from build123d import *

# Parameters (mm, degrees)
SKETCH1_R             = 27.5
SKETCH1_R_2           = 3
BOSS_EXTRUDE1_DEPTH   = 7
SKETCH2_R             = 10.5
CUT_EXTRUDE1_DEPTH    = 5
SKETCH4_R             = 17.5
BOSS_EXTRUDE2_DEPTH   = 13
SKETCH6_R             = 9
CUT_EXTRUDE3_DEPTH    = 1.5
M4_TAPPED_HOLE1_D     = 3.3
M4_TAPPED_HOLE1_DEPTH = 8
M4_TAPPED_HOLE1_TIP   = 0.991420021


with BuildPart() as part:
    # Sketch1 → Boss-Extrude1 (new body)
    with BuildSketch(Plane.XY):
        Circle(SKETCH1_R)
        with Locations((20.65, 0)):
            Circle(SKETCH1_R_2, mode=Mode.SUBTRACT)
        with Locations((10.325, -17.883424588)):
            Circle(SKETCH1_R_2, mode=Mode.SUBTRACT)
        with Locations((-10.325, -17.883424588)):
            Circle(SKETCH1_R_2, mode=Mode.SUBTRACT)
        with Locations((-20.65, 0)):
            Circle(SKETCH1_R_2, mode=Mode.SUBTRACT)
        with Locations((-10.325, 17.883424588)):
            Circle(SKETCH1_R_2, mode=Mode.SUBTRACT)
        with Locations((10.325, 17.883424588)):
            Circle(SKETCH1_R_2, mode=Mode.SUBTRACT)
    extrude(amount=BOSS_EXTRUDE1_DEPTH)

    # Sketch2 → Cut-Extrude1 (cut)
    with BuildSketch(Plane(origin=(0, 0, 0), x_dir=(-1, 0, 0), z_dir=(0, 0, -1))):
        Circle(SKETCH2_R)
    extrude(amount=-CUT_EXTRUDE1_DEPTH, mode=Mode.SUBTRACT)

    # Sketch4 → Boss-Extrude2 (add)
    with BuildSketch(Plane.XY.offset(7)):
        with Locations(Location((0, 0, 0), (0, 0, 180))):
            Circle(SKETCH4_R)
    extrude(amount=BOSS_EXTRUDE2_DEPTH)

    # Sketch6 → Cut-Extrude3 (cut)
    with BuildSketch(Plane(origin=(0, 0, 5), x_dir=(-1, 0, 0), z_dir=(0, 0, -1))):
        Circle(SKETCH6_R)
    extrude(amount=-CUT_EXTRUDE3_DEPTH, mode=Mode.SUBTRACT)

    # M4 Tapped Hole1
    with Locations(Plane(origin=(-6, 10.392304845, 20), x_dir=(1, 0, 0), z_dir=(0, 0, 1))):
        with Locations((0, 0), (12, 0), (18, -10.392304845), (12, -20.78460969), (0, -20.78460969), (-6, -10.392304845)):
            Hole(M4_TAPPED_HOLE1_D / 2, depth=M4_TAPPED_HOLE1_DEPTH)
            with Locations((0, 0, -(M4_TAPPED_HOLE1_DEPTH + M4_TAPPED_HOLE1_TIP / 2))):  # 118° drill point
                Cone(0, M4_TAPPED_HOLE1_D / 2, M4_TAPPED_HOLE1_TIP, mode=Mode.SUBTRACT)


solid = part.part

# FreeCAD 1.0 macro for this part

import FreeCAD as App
import Part
import Sketcher

V = App.Vector

doc = App.newDocument("Part")
body = doc.addObject("PartDesign::Body", "Body")

# Sketch on XY plane
sketch1 = body.newObject("Sketcher::SketchObject", "Sketch")
sketch1.AttachmentSupport = (doc.getObject("XY_Plane"), [""])
sketch1.MapMode = "FlatFace"
sketch1.addGeometry(Part.Circle(V(0, 0, 0), V(0, 0, 1), 27.5), False)
sketch1.addGeometry(Part.Circle(V(-10.3, -17.9, 0), V(0, 0, 1), 3), False)
sketch1.addGeometry(Part.Circle(V(-20.6, 0, 0), V(0, 0, 1), 3), False)
sketch1.addGeometry(Part.Circle(V(10.3, -17.9, 0), V(0, 0, 1), 3), False)
sketch1.addGeometry(Part.Circle(V(20.6, 0, 0), V(0, 0, 1), 3), False)
sketch1.addGeometry(Part.Circle(V(-10.3, 17.9, 0), V(0, 0, 1), 3), False)
sketch1.addGeometry(Part.Circle(V(10.3, 17.9, 0), V(0, 0, 1), 3), False)
sketch1.addConstraint(Sketcher.Constraint("Coincident", 0, 3, -1, 1))
sketch1.addConstraint(Sketcher.Constraint("Equal", 1, 2))
sketch1.addConstraint(Sketcher.Constraint("Equal", 2, 3))
sketch1.addConstraint(Sketcher.Constraint("Equal", 3, 4))
sketch1.addConstraint(Sketcher.Constraint("Equal", 4, 5))
sketch1.addConstraint(Sketcher.Constraint("Equal", 5, 6))
sketch1.addConstraint(Sketcher.Constraint("Symmetric", 2, 3, 4, 3, -1, 1))
sketch1.addConstraint(Sketcher.Constraint("Symmetric", 3, 3, 5, 3, -1, 1))
sketch1.addConstraint(Sketcher.Constraint("Symmetric", 1, 3, 6, 3, -1, 1))
sketch1.addConstraint(Sketcher.Constraint("Symmetric", 1, 3, 3, 3, -2))
sketch1.addConstraint(Sketcher.Constraint("PointOnObject", 2, 3, -1))
sketch1.addConstraint(Sketcher.Constraint("Diameter", 0, 55.0))
sketch1.addConstraint(Sketcher.Constraint("Diameter", 1, 6.0))
sketch1.addConstraint(Sketcher.Constraint("DistanceX", 2, 3, 4, 3, 41.3))
sketch1.addConstraint(Sketcher.Constraint("DistanceX", 1, 3, 3, 3, 20.65))
sketch1.addConstraint(Sketcher.Constraint("DistanceY", 1, 3, 5, 3, 35.766849))
pad1 = body.newObject("PartDesign::Pad", "Pad")
pad1.Profile = sketch1
pad1.Length = 7

# Sketch on XY plane
sketch2 = body.newObject("Sketcher::SketchObject", "Sketch001")
sketch2.AttachmentSupport = (doc.getObject("XY_Plane"), [""])
sketch2.MapMode = "FlatFace"
sketch2.addGeometry(Part.Circle(V(0, 0, 0), V(0, 0, 1), 10), False)
sketch2.addConstraint(Sketcher.Constraint("Coincident", 0, 3, -1, 1))
sketch2.addConstraint(Sketcher.Constraint("Diameter", 0, 21.0))
pocket1 = body.newObject("PartDesign::Pocket", "Pocket")
pocket1.Profile = sketch2
pocket1.Length = 5
pocket1.Reversed = True

# Sketch on XY plane
sketch3 = body.newObject("Sketcher::SketchObject", "Sketch002")
sketch3.AttachmentSupport = (doc.getObject("XY_Plane"), [""])
sketch3.MapMode = "FlatFace"
sketch3.AttachmentOffset = App.Placement(V(0, 0, 7), App.Rotation())
sketch3.addGeometry(Part.Circle(V(0, 0, 0), V(0, 0, 1), 18), False)
sketch3.addConstraint(Sketcher.Constraint("Coincident", 0, 3, -1, 1))
sketch3.addConstraint(Sketcher.Constraint("Diameter", 0, 35.0))
pad2 = body.newObject("PartDesign::Pad", "Pad001")
pad2.Profile = sketch3
pad2.Length = 13

# Sketch on XY plane
sketch4 = body.newObject("Sketcher::SketchObject", "Sketch003")
sketch4.AttachmentSupport = (doc.getObject("XY_Plane"), [""])
sketch4.MapMode = "FlatFace"
sketch4.AttachmentOffset = App.Placement(V(0, 0, 5), App.Rotation())
sketch4.addGeometry(Part.Circle(V(0, 0, 0), V(0, 0, 1), 9), False)
sketch4.addConstraint(Sketcher.Constraint("Coincident", 0, 3, -1, 1))
sketch4.addConstraint(Sketcher.Constraint("Diameter", 0, 18.0))
pocket2 = body.newObject("PartDesign::Pocket", "Pocket001")
pocket2.Profile = sketch4
pocket2.Length = 1.5
pocket2.Reversed = True

# Sketch on XY plane
sketch5 = body.newObject("Sketcher::SketchObject", "Sketch004")
sketch5.AttachmentSupport = (doc.getObject("XY_Plane"), [""])
sketch5.MapMode = "FlatFace"
sketch5.AttachmentOffset = App.Placement(V(0, 0, 20), App.Rotation())
sketch5.addGeometry(Part.Circle(V(-6, 10.4, 0), V(0, 0, 1), 1.6), False)
sketch5.addGeometry(Part.Circle(V(6, 10.4, 0), V(0, 0, 1), 1.6), False)
sketch5.addGeometry(Part.Circle(V(12, 0, 0), V(0, 0, 1), 1.6), False)
sketch5.addGeometry(Part.Circle(V(6, -10.4, 0), V(0, 0, 1), 1.6), False)
sketch5.addGeometry(Part.Circle(V(-6, -10.4, 0), V(0, 0, 1), 1.6), False)
sketch5.addGeometry(Part.Circle(V(-12, 0, 0), V(0, 0, 1), 1.6), False)
sketch5.addConstraint(Sketcher.Constraint("Equal", 0, 1))
sketch5.addConstraint(Sketcher.Constraint("Equal", 1, 2))
sketch5.addConstraint(Sketcher.Constraint("Equal", 2, 3))
sketch5.addConstraint(Sketcher.Constraint("Equal", 3, 4))
sketch5.addConstraint(Sketcher.Constraint("Equal", 4, 5))
sketch5.addConstraint(Sketcher.Constraint("Symmetric", 0, 3, 3, 3, -1, 1))
sketch5.addConstraint(Sketcher.Constraint("Symmetric", 1, 3, 4, 3, -1, 1))
sketch5.addConstraint(Sketcher.Constraint("Symmetric", 2, 3, 5, 3, -1, 1))
sketch5.addConstraint(Sketcher.Constraint("Symmetric", 0, 3, 1, 3, -2))
sketch5.addConstraint(Sketcher.Constraint("PointOnObject", 2, 3, -1))
sketch5.addConstraint(Sketcher.Constraint("Diameter", 0, 3.3))
sketch5.addConstraint(Sketcher.Constraint("DistanceX", 0, 3, -1, 1, 6.0))
sketch5.addConstraint(Sketcher.Constraint("DistanceX", -1, 1, 2, 3, 12.0))
sketch5.addConstraint(Sketcher.Constraint("DistanceY", 3, 3, 1, 3, 20.78461))
doc.recompute()
hole = body.newObject("PartDesign::Hole", "Hole")
hole.Profile = sketch5
hole.ThreadType = "None"
hole.Diameter = 3.3
hole.DepthType = "Dimension"
hole.Depth = 8
hole.DrillPoint = "Angled"
hole.DrillPointAngle = 118

doc.recompute()
